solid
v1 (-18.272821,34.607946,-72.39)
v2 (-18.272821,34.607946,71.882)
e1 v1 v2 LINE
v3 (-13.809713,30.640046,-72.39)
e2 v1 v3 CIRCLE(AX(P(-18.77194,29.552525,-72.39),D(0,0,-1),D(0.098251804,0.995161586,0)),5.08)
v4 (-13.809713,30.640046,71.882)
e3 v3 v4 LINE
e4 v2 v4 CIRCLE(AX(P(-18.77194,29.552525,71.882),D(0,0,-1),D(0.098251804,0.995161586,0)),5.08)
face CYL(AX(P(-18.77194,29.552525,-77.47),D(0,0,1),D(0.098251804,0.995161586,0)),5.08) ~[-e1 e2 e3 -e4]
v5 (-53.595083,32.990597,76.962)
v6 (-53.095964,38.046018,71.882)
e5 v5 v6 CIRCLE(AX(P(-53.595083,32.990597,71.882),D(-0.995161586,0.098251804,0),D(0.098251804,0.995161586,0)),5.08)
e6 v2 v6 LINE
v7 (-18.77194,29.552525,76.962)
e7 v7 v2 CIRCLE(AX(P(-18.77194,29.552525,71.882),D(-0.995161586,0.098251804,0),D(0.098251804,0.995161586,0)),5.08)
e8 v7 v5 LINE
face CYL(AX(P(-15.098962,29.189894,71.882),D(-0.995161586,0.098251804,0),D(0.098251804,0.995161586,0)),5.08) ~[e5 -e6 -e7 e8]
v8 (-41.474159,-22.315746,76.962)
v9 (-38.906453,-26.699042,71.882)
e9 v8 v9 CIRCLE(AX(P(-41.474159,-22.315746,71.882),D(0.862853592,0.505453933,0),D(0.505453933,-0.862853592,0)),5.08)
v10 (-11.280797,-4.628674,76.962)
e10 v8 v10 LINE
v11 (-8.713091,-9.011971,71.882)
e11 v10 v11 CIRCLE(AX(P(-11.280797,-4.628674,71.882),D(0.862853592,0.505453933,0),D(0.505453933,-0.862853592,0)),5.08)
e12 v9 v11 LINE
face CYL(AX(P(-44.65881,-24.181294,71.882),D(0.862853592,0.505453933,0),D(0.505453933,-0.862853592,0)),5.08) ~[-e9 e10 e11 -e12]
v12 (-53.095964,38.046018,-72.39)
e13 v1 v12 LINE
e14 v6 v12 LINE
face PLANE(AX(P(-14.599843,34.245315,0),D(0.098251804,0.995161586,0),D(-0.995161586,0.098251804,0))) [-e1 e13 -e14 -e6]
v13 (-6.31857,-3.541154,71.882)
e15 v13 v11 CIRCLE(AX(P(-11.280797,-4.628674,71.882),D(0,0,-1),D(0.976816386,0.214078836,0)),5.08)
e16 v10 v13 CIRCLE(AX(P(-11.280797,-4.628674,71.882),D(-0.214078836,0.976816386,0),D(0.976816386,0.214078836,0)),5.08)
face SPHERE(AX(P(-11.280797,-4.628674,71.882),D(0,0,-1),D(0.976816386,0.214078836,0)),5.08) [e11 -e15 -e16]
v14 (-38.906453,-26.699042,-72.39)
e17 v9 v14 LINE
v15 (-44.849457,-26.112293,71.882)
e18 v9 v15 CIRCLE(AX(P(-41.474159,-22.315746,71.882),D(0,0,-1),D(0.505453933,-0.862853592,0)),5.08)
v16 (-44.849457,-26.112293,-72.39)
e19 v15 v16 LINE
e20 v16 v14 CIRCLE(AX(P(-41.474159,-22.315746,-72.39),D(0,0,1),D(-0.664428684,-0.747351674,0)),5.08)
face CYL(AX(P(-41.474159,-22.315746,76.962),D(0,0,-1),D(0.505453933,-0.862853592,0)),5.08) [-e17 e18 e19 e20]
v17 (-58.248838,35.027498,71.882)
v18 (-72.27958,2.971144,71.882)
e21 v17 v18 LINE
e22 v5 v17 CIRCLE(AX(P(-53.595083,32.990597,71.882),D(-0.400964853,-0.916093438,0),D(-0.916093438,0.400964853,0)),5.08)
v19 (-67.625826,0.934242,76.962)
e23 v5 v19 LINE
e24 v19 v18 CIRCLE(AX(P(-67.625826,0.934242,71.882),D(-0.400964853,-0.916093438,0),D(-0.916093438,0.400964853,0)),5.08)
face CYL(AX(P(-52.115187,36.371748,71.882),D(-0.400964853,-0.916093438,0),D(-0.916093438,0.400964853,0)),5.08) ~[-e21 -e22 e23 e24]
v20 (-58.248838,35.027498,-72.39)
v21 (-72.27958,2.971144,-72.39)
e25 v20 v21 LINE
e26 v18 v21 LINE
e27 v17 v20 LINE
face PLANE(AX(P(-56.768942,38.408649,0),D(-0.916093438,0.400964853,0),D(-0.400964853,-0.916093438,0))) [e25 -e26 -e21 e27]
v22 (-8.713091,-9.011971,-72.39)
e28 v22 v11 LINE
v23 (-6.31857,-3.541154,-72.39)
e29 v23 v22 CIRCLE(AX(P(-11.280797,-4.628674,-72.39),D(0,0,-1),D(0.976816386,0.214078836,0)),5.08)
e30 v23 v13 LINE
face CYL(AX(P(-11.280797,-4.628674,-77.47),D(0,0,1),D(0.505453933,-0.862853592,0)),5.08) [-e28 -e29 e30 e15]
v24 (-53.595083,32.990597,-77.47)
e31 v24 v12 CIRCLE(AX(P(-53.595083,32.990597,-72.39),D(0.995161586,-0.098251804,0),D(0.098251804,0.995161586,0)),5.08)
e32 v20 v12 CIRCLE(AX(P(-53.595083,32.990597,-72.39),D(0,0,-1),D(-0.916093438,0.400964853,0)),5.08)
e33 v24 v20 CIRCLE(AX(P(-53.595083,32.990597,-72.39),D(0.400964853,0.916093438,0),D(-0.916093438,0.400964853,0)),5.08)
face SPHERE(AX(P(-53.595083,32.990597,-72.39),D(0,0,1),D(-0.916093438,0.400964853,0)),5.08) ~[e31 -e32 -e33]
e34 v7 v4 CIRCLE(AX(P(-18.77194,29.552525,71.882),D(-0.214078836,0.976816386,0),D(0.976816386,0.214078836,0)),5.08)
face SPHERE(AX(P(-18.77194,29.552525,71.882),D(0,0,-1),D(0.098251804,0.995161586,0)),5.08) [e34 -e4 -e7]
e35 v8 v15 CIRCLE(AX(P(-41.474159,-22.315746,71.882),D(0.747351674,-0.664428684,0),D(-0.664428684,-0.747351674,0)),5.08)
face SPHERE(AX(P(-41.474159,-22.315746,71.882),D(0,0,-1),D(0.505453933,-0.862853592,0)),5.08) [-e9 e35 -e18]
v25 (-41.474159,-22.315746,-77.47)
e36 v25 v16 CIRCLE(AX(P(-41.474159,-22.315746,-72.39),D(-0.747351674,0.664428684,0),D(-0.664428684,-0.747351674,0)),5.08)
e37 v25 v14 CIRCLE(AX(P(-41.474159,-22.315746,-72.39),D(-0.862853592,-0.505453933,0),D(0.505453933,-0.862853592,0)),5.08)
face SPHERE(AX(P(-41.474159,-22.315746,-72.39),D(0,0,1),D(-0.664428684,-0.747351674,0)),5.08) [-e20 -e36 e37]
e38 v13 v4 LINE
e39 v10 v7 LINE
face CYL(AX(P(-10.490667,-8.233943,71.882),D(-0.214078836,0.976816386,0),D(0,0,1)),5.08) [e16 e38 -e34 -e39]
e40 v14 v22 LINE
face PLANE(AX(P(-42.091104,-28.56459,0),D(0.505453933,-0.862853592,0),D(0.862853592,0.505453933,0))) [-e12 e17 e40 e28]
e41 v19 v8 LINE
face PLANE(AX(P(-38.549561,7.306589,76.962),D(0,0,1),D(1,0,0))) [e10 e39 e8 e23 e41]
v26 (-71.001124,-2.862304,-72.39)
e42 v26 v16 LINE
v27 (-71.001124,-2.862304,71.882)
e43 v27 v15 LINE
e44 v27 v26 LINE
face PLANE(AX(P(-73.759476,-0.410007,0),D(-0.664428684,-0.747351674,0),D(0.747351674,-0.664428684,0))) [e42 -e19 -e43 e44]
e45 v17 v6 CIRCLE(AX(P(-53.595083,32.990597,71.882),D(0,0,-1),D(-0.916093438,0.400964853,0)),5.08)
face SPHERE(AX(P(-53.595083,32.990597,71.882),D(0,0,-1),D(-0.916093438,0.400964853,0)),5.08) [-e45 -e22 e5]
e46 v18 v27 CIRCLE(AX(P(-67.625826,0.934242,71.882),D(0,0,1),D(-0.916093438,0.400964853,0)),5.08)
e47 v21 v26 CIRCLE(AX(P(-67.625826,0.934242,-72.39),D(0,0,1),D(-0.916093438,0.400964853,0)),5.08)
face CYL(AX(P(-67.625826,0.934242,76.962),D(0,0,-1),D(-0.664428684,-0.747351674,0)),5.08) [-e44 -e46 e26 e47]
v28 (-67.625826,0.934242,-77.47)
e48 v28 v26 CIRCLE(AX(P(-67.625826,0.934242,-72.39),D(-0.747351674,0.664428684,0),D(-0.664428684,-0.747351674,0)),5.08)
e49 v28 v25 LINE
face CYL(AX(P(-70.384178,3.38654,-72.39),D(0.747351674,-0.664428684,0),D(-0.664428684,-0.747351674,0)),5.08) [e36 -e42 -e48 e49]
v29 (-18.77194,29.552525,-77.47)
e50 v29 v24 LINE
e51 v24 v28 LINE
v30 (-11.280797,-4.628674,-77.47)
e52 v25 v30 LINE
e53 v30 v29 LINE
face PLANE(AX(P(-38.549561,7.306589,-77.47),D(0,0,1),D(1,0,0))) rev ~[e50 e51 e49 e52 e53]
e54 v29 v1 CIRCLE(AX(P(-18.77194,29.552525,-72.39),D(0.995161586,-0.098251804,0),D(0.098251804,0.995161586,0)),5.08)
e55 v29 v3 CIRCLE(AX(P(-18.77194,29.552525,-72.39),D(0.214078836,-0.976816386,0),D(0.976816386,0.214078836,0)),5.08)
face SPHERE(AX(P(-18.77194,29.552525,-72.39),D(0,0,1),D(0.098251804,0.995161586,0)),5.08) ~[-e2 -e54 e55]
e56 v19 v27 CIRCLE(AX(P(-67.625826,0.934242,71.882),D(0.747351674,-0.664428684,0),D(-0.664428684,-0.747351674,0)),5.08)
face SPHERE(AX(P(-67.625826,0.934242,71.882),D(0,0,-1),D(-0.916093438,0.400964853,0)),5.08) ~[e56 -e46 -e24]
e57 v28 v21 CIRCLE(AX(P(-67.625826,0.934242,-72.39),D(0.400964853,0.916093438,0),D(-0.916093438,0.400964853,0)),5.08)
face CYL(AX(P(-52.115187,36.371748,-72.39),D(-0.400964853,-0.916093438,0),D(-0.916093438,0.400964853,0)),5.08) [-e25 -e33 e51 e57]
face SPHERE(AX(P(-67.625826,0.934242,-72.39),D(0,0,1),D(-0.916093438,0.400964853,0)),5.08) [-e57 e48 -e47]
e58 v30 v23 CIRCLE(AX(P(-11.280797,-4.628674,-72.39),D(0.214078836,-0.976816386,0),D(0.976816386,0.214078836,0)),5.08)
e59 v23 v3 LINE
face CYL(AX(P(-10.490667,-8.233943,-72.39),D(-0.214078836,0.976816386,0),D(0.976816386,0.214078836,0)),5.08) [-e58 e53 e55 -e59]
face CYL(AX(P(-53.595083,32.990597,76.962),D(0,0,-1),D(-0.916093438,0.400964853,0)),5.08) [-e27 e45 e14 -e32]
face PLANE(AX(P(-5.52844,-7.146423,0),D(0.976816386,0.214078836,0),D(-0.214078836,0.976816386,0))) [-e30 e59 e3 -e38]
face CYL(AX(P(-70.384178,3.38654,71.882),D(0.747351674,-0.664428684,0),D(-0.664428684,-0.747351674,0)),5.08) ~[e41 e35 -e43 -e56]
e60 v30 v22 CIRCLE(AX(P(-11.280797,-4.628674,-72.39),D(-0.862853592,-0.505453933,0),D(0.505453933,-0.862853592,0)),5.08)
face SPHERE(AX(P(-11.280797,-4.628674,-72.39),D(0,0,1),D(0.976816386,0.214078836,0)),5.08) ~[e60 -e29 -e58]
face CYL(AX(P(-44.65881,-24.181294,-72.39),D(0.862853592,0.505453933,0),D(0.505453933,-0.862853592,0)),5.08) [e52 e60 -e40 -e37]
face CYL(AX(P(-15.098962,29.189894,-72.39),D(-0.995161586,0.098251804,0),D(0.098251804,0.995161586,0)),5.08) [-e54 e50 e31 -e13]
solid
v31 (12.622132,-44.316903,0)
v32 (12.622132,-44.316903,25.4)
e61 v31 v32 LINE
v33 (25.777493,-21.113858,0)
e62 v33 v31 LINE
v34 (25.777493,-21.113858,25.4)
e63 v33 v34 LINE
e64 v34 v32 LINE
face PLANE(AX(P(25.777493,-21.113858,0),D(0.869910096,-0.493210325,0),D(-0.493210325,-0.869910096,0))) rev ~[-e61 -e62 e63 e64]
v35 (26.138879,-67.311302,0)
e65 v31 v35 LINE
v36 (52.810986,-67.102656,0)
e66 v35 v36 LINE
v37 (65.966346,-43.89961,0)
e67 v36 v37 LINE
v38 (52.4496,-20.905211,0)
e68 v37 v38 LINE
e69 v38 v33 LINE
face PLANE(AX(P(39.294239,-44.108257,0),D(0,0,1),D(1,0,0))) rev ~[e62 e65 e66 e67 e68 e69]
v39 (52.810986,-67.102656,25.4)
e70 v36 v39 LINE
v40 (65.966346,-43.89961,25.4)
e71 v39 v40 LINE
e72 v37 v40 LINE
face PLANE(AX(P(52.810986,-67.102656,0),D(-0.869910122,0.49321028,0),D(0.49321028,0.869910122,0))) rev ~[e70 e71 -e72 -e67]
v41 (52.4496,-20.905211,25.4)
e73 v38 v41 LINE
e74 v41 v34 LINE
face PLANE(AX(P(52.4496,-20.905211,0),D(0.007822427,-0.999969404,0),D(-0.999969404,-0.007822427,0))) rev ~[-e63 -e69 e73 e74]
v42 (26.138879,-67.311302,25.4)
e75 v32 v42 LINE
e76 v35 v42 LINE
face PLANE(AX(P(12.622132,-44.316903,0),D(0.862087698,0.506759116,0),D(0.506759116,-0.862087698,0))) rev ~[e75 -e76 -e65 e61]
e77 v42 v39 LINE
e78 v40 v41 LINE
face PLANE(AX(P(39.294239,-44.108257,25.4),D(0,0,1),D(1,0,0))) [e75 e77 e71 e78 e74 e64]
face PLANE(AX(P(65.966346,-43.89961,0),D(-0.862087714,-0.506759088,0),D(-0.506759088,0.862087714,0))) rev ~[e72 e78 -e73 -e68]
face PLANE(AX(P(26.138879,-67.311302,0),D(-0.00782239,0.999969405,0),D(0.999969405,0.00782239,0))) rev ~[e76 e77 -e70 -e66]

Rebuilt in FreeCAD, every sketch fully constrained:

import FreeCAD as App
import Part
import Sketcher
from FreeCAD import Vector
Q = App.Units.Quantity


def add_polygon(sketch, points):
    """Adds a closed chain of lines whose ends are joined by coincident constraints."""
    first, n = sketch.GeometryCount, len(points)
    for a, b in zip(points, points[1:] + points[:1]):
        sketch.addGeometry(Part.LineSegment(App.Vector(*a, 0), App.Vector(*b, 0)), False)
    for i in range(n):
        sketch.addConstraint(Sketcher.Constraint("Coincident", first + i, 2, first + (i + 1) % n, 1))

doc = App.newDocument("Part")
body = doc.addObject("PartDesign::Body", "Body")

sketch1 = body.newObject("Sketcher::SketchObject", "Sketch")
sketch1.AttachmentSupport = (doc.getObject("XY_Plane"), [""])
sketch1.MapMode = "FlatFace"
add_polygon(sketch1, [(-42, -29), (-6, -7), (-15, 34), (-57, 38), (-74, 0)])
sketch1.addConstraint(Sketcher.Constraint("Equal", 0, 1))
sketch1.addConstraint(Sketcher.Constraint("Equal", 1, 2))
sketch1.addConstraint(Sketcher.Constraint("Equal", 2, 3))
sketch1.addConstraint(Sketcher.Constraint("Equal", 3, 4))
sketch1.addConstraint(Sketcher.Constraint("DistanceX", 2, 2, 1, 2, 42.169099))
sketch1.addConstraint(Sketcher.Constraint("DistanceX", 0, 2, -1, 1, 5.52844))
sketch1.addConstraint(Sketcher.Constraint("DistanceY", -1, 1, 2, 2, 38.408649))
sketch1.addConstraint(Sketcher.Constraint("DistanceY", 4, 2, -1, 1, 28.56459))
sketch1.addConstraint(Sketcher.Constraint("DistanceY", 0, 2, 2, 2, 45.555072))
sketch1.addConstraint(Sketcher.Constraint("DistanceY", 3, 2, 1, 2, 34.655322))
pad1 = body.newObject("PartDesign::Pad", "Pad")
pad1.Profile = sketch1
pad1.Type = "TwoLengths"
pad1.Length = Q("3.03 in")
pad1.Length2 = Q("3.05 in")
doc.recompute()

fillet = body.newObject("PartDesign::Fillet", "Fillet")
fillet.Base = (pad1, ["Edge1"])
fillet.UseAllEdges = True
fillet.Radius = Q("0.2 in")
body2 = doc.addObject("PartDesign::Body", "Body001")

sketch2 = body2.newObject("Sketcher::SketchObject", "Sketch001")
sketch2.AttachmentSupport = (doc.getObject("XY_Plane001"), [""])
sketch2.MapMode = "FlatFace"
add_polygon(sketch2, [(26, -67), (53, -67), (66, -44), (52, -21), (26, -21), (13, -44)])
sketch2.addConstraint(Sketcher.Constraint("Parallel", 0, 3))
sketch2.addConstraint(Sketcher.Constraint("Parallel", 1, 4))
sketch2.addConstraint(Sketcher.Constraint("Parallel", 2, 5))
sketch2.addConstraint(Sketcher.Constraint("Equal", 0, 1))
sketch2.addConstraint(Sketcher.Constraint("Equal", 1, 2))
sketch2.addConstraint(Sketcher.Constraint("Equal", 2, 3))
sketch2.addConstraint(Sketcher.Constraint("DistanceX", -1, 1, 2, 2, 52.4496))
sketch2.addConstraint(Sketcher.Constraint("DistanceY", 5, 2, -1, 1, 67.311302))
sketch2.addConstraint(Sketcher.Constraint("DistanceY", 1, 2, 2, 2, 22.994399))
sketch2.addConstraint(Sketcher.Constraint("DistanceY", 1, 2, -1, 1, 43.89961))
sketch2.addConstraint(Sketcher.Constraint("DistanceY", 3, 2, -1, 1, 21.113858))
sketch2.addConstraint(Sketcher.Constraint("DistanceX", -1, 1, 5, 2, 26.138879))
pad2 = body2.newObject("PartDesign::Pad", "Pad001")
pad2.Profile = sketch2
pad2.Length = Q("1 in")

sketch3 = body2.newObject("Sketcher::SketchObject", "Sketch002")
sketch3.AttachmentSupport = (doc.getObject("XY_Plane001"), [""])
sketch3.MapMode = "FlatFace"
add_polygon(sketch3, [(26, -67), (53, -67), (66, -44), (52, -21), (26, -21), (13, -44)])
sketch3.addConstraint(Sketcher.Constraint("Parallel", 0, 3))
sketch3.addConstraint(Sketcher.Constraint("Parallel", 1, 4))
sketch3.addConstraint(Sketcher.Constraint("Parallel", 2, 5))
sketch3.addConstraint(Sketcher.Constraint("Equal", 0, 1))
sketch3.addConstraint(Sketcher.Constraint("Equal", 1, 2))
sketch3.addConstraint(Sketcher.Constraint("Equal", 2, 3))
sketch3.addConstraint(Sketcher.Constraint("DistanceX", -1, 1, 2, 2, 52.4496))
sketch3.addConstraint(Sketcher.Constraint("DistanceY", 5, 2, -1, 1, 67.311302))
sketch3.addConstraint(Sketcher.Constraint("DistanceY", 1, 2, 2, 2, 22.994399))
sketch3.addConstraint(Sketcher.Constraint("DistanceY", 1, 2, -1, 1, 43.89961))
sketch3.addConstraint(Sketcher.Constraint("DistanceY", 3, 2, -1, 1, 21.113858))
sketch3.addConstraint(Sketcher.Constraint("DistanceX", -1, 1, 5, 2, 26.138879))
pad3 = body2.newObject("PartDesign::Pad", "Pad002")
pad3.Profile = sketch3
pad3.Length = Q("1 in")

doc.recompute()
